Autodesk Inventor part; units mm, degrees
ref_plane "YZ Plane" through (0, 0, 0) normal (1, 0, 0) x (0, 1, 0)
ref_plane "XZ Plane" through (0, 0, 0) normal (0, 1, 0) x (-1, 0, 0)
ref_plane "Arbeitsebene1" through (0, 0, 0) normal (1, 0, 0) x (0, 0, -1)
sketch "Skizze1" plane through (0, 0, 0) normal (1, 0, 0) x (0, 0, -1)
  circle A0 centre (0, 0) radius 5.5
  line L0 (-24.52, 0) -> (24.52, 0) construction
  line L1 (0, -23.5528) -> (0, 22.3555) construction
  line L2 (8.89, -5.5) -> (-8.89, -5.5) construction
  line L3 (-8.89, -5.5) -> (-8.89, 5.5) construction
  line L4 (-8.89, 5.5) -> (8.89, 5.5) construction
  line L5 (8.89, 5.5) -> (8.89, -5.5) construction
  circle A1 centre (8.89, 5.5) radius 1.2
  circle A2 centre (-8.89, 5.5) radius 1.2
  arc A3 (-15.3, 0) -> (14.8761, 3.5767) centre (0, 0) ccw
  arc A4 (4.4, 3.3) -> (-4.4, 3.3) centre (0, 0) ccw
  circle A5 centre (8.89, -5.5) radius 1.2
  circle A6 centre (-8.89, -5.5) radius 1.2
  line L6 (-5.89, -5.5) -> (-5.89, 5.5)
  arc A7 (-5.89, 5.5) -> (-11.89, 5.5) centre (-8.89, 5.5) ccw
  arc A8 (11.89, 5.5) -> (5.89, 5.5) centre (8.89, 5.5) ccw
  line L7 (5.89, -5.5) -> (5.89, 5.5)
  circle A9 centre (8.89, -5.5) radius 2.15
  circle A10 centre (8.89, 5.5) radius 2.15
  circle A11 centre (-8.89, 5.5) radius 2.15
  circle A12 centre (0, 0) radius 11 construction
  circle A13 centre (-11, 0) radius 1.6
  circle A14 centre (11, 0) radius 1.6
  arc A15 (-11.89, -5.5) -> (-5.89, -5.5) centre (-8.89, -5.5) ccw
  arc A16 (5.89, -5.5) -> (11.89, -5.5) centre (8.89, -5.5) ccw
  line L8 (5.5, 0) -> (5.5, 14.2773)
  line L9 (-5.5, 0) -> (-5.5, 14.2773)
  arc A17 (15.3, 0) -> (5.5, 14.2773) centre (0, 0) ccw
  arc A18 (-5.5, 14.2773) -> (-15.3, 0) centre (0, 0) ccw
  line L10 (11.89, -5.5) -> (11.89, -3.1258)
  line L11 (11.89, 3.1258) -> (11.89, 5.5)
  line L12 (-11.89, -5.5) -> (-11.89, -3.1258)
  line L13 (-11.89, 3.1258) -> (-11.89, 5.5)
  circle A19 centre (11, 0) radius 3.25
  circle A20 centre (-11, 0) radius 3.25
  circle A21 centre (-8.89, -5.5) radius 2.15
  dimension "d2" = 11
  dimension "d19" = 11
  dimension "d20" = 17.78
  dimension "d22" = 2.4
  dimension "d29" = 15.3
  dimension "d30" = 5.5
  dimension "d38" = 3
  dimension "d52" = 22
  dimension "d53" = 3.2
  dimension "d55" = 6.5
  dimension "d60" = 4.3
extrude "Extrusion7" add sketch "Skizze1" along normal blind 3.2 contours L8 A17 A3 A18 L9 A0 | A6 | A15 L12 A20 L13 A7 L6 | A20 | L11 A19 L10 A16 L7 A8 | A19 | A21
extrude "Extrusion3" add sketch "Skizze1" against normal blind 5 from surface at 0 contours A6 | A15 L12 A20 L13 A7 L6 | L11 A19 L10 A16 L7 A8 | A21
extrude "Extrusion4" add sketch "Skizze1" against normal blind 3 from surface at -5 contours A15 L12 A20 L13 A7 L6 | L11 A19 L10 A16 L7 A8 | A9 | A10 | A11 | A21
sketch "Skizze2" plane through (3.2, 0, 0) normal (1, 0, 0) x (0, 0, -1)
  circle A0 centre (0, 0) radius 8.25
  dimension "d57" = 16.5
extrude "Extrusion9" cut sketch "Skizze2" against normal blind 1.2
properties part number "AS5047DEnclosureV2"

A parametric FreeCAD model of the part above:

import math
import FreeCAD as App
import Part
import Sketcher

V = App.Vector

doc = App.newDocument("Part")
body = doc.addObject("PartDesign::Body", "Body")

sketch1 = body.newObject("Sketcher::SketchObject", "Sketch")
sketch1.AttachmentSupport = (doc.getObject("YZ_Plane"), [""])
sketch1.MapMode = "FlatFace"
sketch1.addGeometry(Part.LineSegment(V(14.3, -5.5, 0), V(0, -5.5, 0)), False)
sketch1.addGeometry(Part.ArcOfCircle(Part.Circle(V(0, 0, 0), V(0, 0, 1), 5.5), math.radians(90), math.radians(270)), False)
sketch1.addGeometry(Part.LineSegment(V(0, 5.5, 0), V(14.3, 5.5, 0)), False)
sketch1.addGeometry(Part.ArcOfCircle(Part.Circle(V(0, 0, 0), V(0, 0, 1), 15.3), math.radians(21), math.radians(90)), False)
sketch1.addGeometry(Part.ArcOfCircle(Part.Circle(V(0, 0, 0), V(0, 0, 1), 15.3), math.radians(90), math.radians(284)), False)
sketch1.addGeometry(Part.ArcOfCircle(Part.Circle(V(0, 0, 0), V(0, 0, 1), 15.3), math.radians(-76), math.radians(-21)), False)
sketch1.addGeometry(Part.Circle(V(5.5, 8.9, 0), V(0, 0, 1), 2.1), False)
sketch1.addGeometry(Part.Circle(V(0, 11, 0), V(0, 0, 1), 1.6), False)
sketch1.addGeometry(Part.Circle(V(5.5, -8.9, 0), V(0, 0, 1), 2.1), False)
sketch1.addGeometry(Part.Circle(V(-5.5, -8.9, 0), V(0, 0, 1), 2.1), False)
sketch1.addGeometry(Part.Circle(V(0, -11, 0), V(0, 0, 1), 1.6), False)
sketch1.addConstraint(Sketcher.Constraint("Tangent", 0, 2, 1, 2))
sketch1.addConstraint(Sketcher.Constraint("Tangent", 1, 1, 2, 1))
sketch1.addConstraint(Sketcher.Constraint("Coincident", 2, 2, 3, 1))
sketch1.addConstraint(Sketcher.Constraint("Tangent", 3, 2, 4, 1))
sketch1.addConstraint(Sketcher.Constraint("Tangent", 4, 2, 5, 1))
sketch1.addConstraint(Sketcher.Constraint("Coincident", 5, 2, 0, 1))
sketch1.addConstraint(Sketcher.Constraint("Horizontal", 0))
sketch1.addConstraint(Sketcher.Constraint("Horizontal", 2))
sketch1.addConstraint(Sketcher.Constraint("Coincident", 1, 3, -1, 1))
sketch1.addConstraint(Sketcher.Constraint("Coincident", 3, 3, -1, 1))
sketch1.addConstraint(Sketcher.Constraint("Coincident", 5, 3, -1, 1))
sketch1.addConstraint(Sketcher.Constraint("Equal", 6, 8))
sketch1.addConstraint(Sketcher.Constraint("Equal", 8, 9))
sketch1.addConstraint(Sketcher.Constraint("Equal", 7, 10))
sketch1.addConstraint(Sketcher.Constraint("Symmetric", 6, 3, 9, 3, -1, 1))
sketch1.addConstraint(Sketcher.Constraint("Symmetric", 7, 3, 10, 3, -1, 1))
sketch1.addConstraint(Sketcher.Constraint("Symmetric", 8, 3, 9, 3, -2))
sketch1.addConstraint(Sketcher.Constraint("PointOnObject", 7, 3, -2))
sketch1.addConstraint(Sketcher.Constraint("PointOnObject", 3, 2, -2))
sketch1.addConstraint(Sketcher.Constraint("Diameter", 6, 4.3))
sketch1.addConstraint(Sketcher.Constraint("Diameter", 7, 3.2))
sketch1.addConstraint(Sketcher.Constraint("Radius", 1, 5.5))
sketch1.addConstraint(Sketcher.Constraint("Radius", 3, 15.3))
sketch1.addConstraint(Sketcher.Constraint("DistanceY", -1, 1, 7, 3, 11.0))
sketch1.addConstraint(Sketcher.Constraint("DistanceX", 9, 3, 8, 3, 11.0))
sketch1.addConstraint(Sketcher.Constraint("DistanceY", 8, 3, 6, 3, 17.78))
sketch1.addConstraint(Sketcher.Constraint("DistanceY", 4, 2, -1, 1, 14.876))
pad1 = body.newObject("PartDesign::Pad", "Pad")
pad1.Profile = sketch1
pad1.Length = 3.2

sketch2 = body.newObject("Sketcher::SketchObject", "Sketch001")
sketch2.AttachmentSupport = (doc.getObject("YZ_Plane"), [""])
sketch2.MapMode = "FlatFace"
sketch2.addGeometry(Part.ArcOfCircle(Part.Circle(V(-5.5, 8.9, 0), V(0, 0, 1), 3), math.radians(90), math.radians(270)), False)
sketch2.addGeometry(Part.LineSegment(V(-5.5, 5.9, 0), V(5.5, 5.9, 0)), False)
sketch2.addGeometry(Part.ArcOfCircle(Part.Circle(V(5.5, 8.9, 0), V(0, 0, 1), 3), math.radians(-90), math.radians(90)), False)
sketch2.addGeometry(Part.LineSegment(V(5.5, 11.9, 0), V(3.1, 11.9, 0)), False)
sketch2.addGeometry(Part.ArcOfCircle(Part.Circle(V(0, 11, 0), V(0, 0, 1), 3.2), math.radians(164), math.radians(376)), False)
sketch2.addGeometry(Part.LineSegment(V(-3.1, 11.9, 0), V(-5.5, 11.9, 0)), False)
sketch2.addGeometry(Part.Circle(V(5.5, 8.9, 0), V(0, 0, 1), 2.1), False)
sketch2.addGeometry(Part.LineSegment(V(3.1, -11.9, 0), V(5.5, -11.9, 0)), False)
sketch2.addGeometry(Part.ArcOfCircle(Part.Circle(V(5.5, -8.9, 0), V(0, 0, 1), 3), math.radians(-90), math.radians(90)), False)
sketch2.addGeometry(Part.LineSegment(V(5.5, -5.9, 0), V(-5.5, -5.9, 0)), False)
sketch2.addGeometry(Part.ArcOfCircle(Part.Circle(V(-5.5, -8.9, 0), V(0, 0, 1), 3), math.radians(90), math.radians(270)), False)
sketch2.addGeometry(Part.LineSegment(V(-5.5, -11.9, 0), V(-3.1, -11.9, 0)), False)
sketch2.addGeometry(Part.ArcOfCircle(Part.Circle(V(0, -11, 0), V(0, 0, 1), 3.2), math.radians(-16), math.radians(196)), False)
sketch2.addGeometry(Part.Circle(V(-5.5, -8.9, 0), V(0, 0, 1), 2.1), False)
sketch2.addGeometry(Part.Circle(V(5.5, -8.9, 0), V(0, 0, 1), 2.1), False)
sketch2.addConstraint(Sketcher.Constraint("Tangent", 0, 2, 1, 1))
sketch2.addConstraint(Sketcher.Constraint("Tangent", 1, 2, 2, 1))
sketch2.addConstraint(Sketcher.Constraint("Tangent", 2, 2, 3, 1))
sketch2.addConstraint(Sketcher.Constraint("Coincident", 3, 2, 4, 2))
sketch2.addConstraint(Sketcher.Constraint("Coincident", 4, 1, 5, 1))
sketch2.addConstraint(Sketcher.Constraint("Tangent", 5, 2, 0, 1))
sketch2.addConstraint(Sketcher.Constraint("Tangent", 7, 2, 8, 1))
sketch2.addConstraint(Sketcher.Constraint("Tangent", 8, 2, 9, 1))
sketch2.addConstraint(Sketcher.Constraint("Tangent", 9, 2, 10, 1))
sketch2.addConstraint(Sketcher.Constraint("Tangent", 10, 2, 11, 1))
sketch2.addConstraint(Sketcher.Constraint("Coincident", 11, 2, 12, 2))
sketch2.addConstraint(Sketcher.Constraint("Coincident", 12, 1, 7, 1))
sketch2.addConstraint(Sketcher.Constraint("Horizontal", 1))
sketch2.addConstraint(Sketcher.Constraint("Horizontal", 3))
sketch2.addConstraint(Sketcher.Constraint("Horizontal", 5))
sketch2.addConstraint(Sketcher.Constraint("Horizontal", 7))
sketch2.addConstraint(Sketcher.Constraint("Horizontal", 9))
sketch2.addConstraint(Sketcher.Constraint("Horizontal", 11))
sketch2.addConstraint(Sketcher.Constraint("Coincident", 6, 3, 2, 3))
sketch2.addConstraint(Sketcher.Constraint("Coincident", 13, 3, 10, 3))
sketch2.addConstraint(Sketcher.Constraint("Coincident", 14, 3, 8, 3))
sketch2.addConstraint(Sketcher.Constraint("Equal", 0, 2))
sketch2.addConstraint(Sketcher.Constraint("Equal", 2, 8))
sketch2.addConstraint(Sketcher.Constraint("Equal", 8, 10))
sketch2.addConstraint(Sketcher.Constraint("Equal", 4, 12))
sketch2.addConstraint(Sketcher.Constraint("Equal", 6, 13))
sketch2.addConstraint(Sketcher.Constraint("Equal", 13, 14))
sketch2.addConstraint(Sketcher.Constraint("Symmetric", 0, 3, 8, 3, -1, 1))
sketch2.addConstraint(Sketcher.Constraint("Symmetric", 4, 3, 12, 3, -1, 1))
sketch2.addConstraint(Sketcher.Constraint("PointOnObject", 4, 3, -2))
sketch2.addConstraint(Sketcher.Constraint("Vertical", 6, 3, 8, 3))
sketch2.addConstraint(Sketcher.Constraint("Vertical", 0, 3, 10, 3))
sketch2.addConstraint(Sketcher.Constraint("Radius", 0, 3.0))
sketch2.addConstraint(Sketcher.Constraint("Diameter", 6, 4.3))
sketch2.addConstraint(Sketcher.Constraint("DistanceX", 1, 1, 1, 2, 11.0))
sketch2.addConstraint(Sketcher.Constraint("Radius", 4, 3.25))
sketch2.addConstraint(Sketcher.Constraint("DistanceY", -1, 1, 4, 3, 11.0))
sketch2.addConstraint(Sketcher.Constraint("DistanceY", 8, 3, 2, 3, 17.78))
pad2 = body.newObject("PartDesign::Pad", "Pad001")
pad2.Profile = sketch2
pad2.Length = 5
pad2.Reversed = True

sketch3 = body.newObject("Sketcher::SketchObject", "Sketch002")
sketch3.AttachmentSupport = (doc.getObject("YZ_Plane"), [""])
sketch3.MapMode = "FlatFace"
sketch3.AttachmentOffset = App.Placement(V(0, 0, -5), App.Rotation())
sketch3.addGeometry(Part.ArcOfCircle(Part.Circle(V(-5.5, 8.9, 0), V(0, 0, 1), 3), math.radians(90), math.radians(270)), False)
sketch3.addGeometry(Part.LineSegment(V(-5.5, 5.9, 0), V(5.5, 5.9, 0)), False)
sketch3.addGeometry(Part.ArcOfCircle(Part.Circle(V(5.5, 8.9, 0), V(0, 0, 1), 3), math.radians(-90), math.radians(90)), False)
sketch3.addGeometry(Part.LineSegment(V(5.5, 11.9, 0), V(3.1, 11.9, 0)), False)
sketch3.addGeometry(Part.ArcOfCircle(Part.Circle(V(0, 11, 0), V(0, 0, 1), 3.2), math.radians(164), math.radians(376)), False)
sketch3.addGeometry(Part.LineSegment(V(-3.1, 11.9, 0), V(-5.5, 11.9, 0)), False)
sketch3.addGeometry(Part.Circle(V(-5.5, 8.9, 0), V(0, 0, 1), 1.2), False)
sketch3.addGeometry(Part.Circle(V(5.5, 8.9, 0), V(0, 0, 1), 1.2), False)
sketch3.addGeometry(Part.LineSegment(V(3.1, -11.9, 0), V(5.5, -11.9, 0)), False)
sketch3.addGeometry(Part.ArcOfCircle(Part.Circle(V(5.5, -8.9, 0), V(0, 0, 1), 3), math.radians(-90), math.radians(90)), False)
sketch3.addGeometry(Part.LineSegment(V(5.5, -5.9, 0), V(-5.5, -5.9, 0)), False)
sketch3.addGeometry(Part.ArcOfCircle(Part.Circle(V(-5.5, -8.9, 0), V(0, 0, 1), 3), math.radians(90), math.radians(270)), False)
sketch3.addGeometry(Part.LineSegment(V(-5.5, -11.9, 0), V(-3.1, -11.9, 0)), False)
sketch3.addGeometry(Part.ArcOfCircle(Part.Circle(V(0, -11, 0), V(0, 0, 1), 3.2), math.radians(-16), math.radians(196)), False)
sketch3.addGeometry(Part.Circle(V(-5.5, -8.9, 0), V(0, 0, 1), 1.2), False)
sketch3.addGeometry(Part.Circle(V(5.5, -8.9, 0), V(0, 0, 1), 1.2), False)
sketch3.addConstraint(Sketcher.Constraint("Tangent", 0, 2, 1, 1))
sketch3.addConstraint(Sketcher.Constraint("Tangent", 1, 2, 2, 1))
sketch3.addConstraint(Sketcher.Constraint("Tangent", 2, 2, 3, 1))
sketch3.addConstraint(Sketcher.Constraint("Coincident", 3, 2, 4, 2))
sketch3.addConstraint(Sketcher.Constraint("Coincident", 4, 1, 5, 1))
sketch3.addConstraint(Sketcher.Constraint("Tangent", 5, 2, 0, 1))
sketch3.addConstraint(Sketcher.Constraint("Tangent", 8, 2, 9, 1))
sketch3.addConstraint(Sketcher.Constraint("Tangent", 9, 2, 10, 1))
sketch3.addConstraint(Sketcher.Constraint("Tangent", 10, 2, 11, 1))
sketch3.addConstraint(Sketcher.Constraint("Tangent", 11, 2, 12, 1))
sketch3.addConstraint(Sketcher.Constraint("Coincident", 12, 2, 13, 2))
sketch3.addConstraint(Sketcher.Constraint("Coincident", 13, 1, 8, 1))
sketch3.addConstraint(Sketcher.Constraint("Horizontal", 1))
sketch3.addConstraint(Sketcher.Constraint("Horizontal", 3))
sketch3.addConstraint(Sketcher.Constraint("Horizontal", 5))
sketch3.addConstraint(Sketcher.Constraint("Horizontal", 8))
sketch3.addConstraint(Sketcher.Constraint("Horizontal", 10))
sketch3.addConstraint(Sketcher.Constraint("Horizontal", 12))
sketch3.addConstraint(Sketcher.Constraint("Coincident", 6, 3, 0, 3))
sketch3.addConstraint(Sketcher.Constraint("Coincident", 7, 3, 2, 3))
sketch3.addConstraint(Sketcher.Constraint("Coincident", 14, 3, 11, 3))
sketch3.addConstraint(Sketcher.Constraint("Coincident", 15, 3, 9, 3))
sketch3.addConstraint(Sketcher.Constraint("Equal", 0, 2))
sketch3.addConstraint(Sketcher.Constraint("Equal", 6, 7))
sketch3.addConstraint(Sketcher.Constraint("Equal", 2, 9))
sketch3.addConstraint(Sketcher.Constraint("Equal", 9, 11))
sketch3.addConstraint(Sketcher.Constraint("Equal", 4, 13))
sketch3.addConstraint(Sketcher.Constraint("Equal", 7, 14))
sketch3.addConstraint(Sketcher.Constraint("Equal", 14, 15))
sketch3.addConstraint(Sketcher.Constraint("Symmetric", 0, 3, 9, 3, -1, 1))
sketch3.addConstraint(Sketcher.Constraint("Symmetric", 4, 3, 13, 3, -1, 1))
sketch3.addConstraint(Sketcher.Constraint("PointOnObject", 4, 3, -2))
sketch3.addConstraint(Sketcher.Constraint("Vertical", 7, 3, 9, 3))
sketch3.addConstraint(Sketcher.Constraint("Vertical", 6, 3, 11, 3))
sketch3.addConstraint(Sketcher.Constraint("Radius", 0, 3.0))
sketch3.addConstraint(Sketcher.Constraint("Diameter", 6, 2.4))
sketch3.addConstraint(Sketcher.Constraint("DistanceX", 1, 1, 1, 2, 11.0))
sketch3.addConstraint(Sketcher.Constraint("Radius", 4, 3.25))
sketch3.addConstraint(Sketcher.Constraint("DistanceY", -1, 1, 4, 3, 11.0))
sketch3.addConstraint(Sketcher.Constraint("DistanceY", 9, 3, 2, 3, 17.78))
pad3 = body.newObject("PartDesign::Pad", "Pad002")
pad3.Profile = sketch3
pad3.Length = 3
pad3.Reversed = True

sketch4 = body.newObject("Sketcher::SketchObject", "Sketch003")
sketch4.AttachmentSupport = (doc.getObject("YZ_Plane"), [""])
sketch4.MapMode = "FlatFace"
sketch4.AttachmentOffset = App.Placement(V(0, 0, 3.2), App.Rotation())
sketch4.addGeometry(Part.Circle(V(0, 0, 0), V(0, 0, 1), 8), False)
sketch4.addConstraint(Sketcher.Constraint("Coincident", 0, 3, -1, 1))
sketch4.addConstraint(Sketcher.Constraint("Diameter", 0, 16.5))
pocket1 = body.newObject("PartDesign::Pocket", "Pocket")
pocket1.Profile = sketch4
pocket1.Length = 1.2

doc.recompute()
